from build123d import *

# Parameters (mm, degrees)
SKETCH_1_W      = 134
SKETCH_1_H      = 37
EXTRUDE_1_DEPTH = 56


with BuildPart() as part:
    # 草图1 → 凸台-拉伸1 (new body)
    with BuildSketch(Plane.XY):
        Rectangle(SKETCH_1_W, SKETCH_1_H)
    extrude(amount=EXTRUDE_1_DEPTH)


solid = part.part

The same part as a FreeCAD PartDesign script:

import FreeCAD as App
import Part
import Sketcher
Q = App.Units.Quantity

doc = App.newDocument("Part")
body = doc.addObject("PartDesign::Body", "Body")

sketch1 = body.newObject("Sketcher::SketchObject", "Sketch")
sketch1.AttachmentSupport = (doc.getObject("XY_Plane"), [""])
sketch1.MapMode = "FlatFace"
sketch1.addGeometry([
    Part.LineSegment(App.Vector(-67, 18, 0), App.Vector(-67, -18, 0)),
    Part.LineSegment(App.Vector(-67, -18, 0), App.Vector(67, -18, 0)),
    Part.LineSegment(App.Vector(67, -18, 0), App.Vector(67, 18, 0)),
    Part.LineSegment(App.Vector(67, 18, 0), App.Vector(-67, 18, 0)),
], False)
sketch1.addConstraint([
    Sketcher.Constraint("Coincident", 0, 2, 1, 1),
    Sketcher.Constraint("Coincident", 1, 2, 2, 1),
    Sketcher.Constraint("Coincident", 2, 2, 3, 1),
    Sketcher.Constraint("Coincident", 3, 2, 0, 1),
    Sketcher.Constraint("Vertical", 0),
    Sketcher.Constraint("Horizontal", 1),
    Sketcher.Constraint("Vertical", 2),
    Sketcher.Constraint("Horizontal", 3),
    Sketcher.Constraint("Symmetric", 0, 2, 2, 2, -1, 1),
    Sketcher.Constraint("DistanceX", 1, 1, 1, 2, Q("134 mm")),
    Sketcher.Constraint("DistanceY", 0, 2, 0, 1, Q("37 mm")),
])
pad1 = body.newObject("PartDesign::Pad", "Pad")
pad1.Profile = sketch1
pad1.Length = 56

doc.recompute()
